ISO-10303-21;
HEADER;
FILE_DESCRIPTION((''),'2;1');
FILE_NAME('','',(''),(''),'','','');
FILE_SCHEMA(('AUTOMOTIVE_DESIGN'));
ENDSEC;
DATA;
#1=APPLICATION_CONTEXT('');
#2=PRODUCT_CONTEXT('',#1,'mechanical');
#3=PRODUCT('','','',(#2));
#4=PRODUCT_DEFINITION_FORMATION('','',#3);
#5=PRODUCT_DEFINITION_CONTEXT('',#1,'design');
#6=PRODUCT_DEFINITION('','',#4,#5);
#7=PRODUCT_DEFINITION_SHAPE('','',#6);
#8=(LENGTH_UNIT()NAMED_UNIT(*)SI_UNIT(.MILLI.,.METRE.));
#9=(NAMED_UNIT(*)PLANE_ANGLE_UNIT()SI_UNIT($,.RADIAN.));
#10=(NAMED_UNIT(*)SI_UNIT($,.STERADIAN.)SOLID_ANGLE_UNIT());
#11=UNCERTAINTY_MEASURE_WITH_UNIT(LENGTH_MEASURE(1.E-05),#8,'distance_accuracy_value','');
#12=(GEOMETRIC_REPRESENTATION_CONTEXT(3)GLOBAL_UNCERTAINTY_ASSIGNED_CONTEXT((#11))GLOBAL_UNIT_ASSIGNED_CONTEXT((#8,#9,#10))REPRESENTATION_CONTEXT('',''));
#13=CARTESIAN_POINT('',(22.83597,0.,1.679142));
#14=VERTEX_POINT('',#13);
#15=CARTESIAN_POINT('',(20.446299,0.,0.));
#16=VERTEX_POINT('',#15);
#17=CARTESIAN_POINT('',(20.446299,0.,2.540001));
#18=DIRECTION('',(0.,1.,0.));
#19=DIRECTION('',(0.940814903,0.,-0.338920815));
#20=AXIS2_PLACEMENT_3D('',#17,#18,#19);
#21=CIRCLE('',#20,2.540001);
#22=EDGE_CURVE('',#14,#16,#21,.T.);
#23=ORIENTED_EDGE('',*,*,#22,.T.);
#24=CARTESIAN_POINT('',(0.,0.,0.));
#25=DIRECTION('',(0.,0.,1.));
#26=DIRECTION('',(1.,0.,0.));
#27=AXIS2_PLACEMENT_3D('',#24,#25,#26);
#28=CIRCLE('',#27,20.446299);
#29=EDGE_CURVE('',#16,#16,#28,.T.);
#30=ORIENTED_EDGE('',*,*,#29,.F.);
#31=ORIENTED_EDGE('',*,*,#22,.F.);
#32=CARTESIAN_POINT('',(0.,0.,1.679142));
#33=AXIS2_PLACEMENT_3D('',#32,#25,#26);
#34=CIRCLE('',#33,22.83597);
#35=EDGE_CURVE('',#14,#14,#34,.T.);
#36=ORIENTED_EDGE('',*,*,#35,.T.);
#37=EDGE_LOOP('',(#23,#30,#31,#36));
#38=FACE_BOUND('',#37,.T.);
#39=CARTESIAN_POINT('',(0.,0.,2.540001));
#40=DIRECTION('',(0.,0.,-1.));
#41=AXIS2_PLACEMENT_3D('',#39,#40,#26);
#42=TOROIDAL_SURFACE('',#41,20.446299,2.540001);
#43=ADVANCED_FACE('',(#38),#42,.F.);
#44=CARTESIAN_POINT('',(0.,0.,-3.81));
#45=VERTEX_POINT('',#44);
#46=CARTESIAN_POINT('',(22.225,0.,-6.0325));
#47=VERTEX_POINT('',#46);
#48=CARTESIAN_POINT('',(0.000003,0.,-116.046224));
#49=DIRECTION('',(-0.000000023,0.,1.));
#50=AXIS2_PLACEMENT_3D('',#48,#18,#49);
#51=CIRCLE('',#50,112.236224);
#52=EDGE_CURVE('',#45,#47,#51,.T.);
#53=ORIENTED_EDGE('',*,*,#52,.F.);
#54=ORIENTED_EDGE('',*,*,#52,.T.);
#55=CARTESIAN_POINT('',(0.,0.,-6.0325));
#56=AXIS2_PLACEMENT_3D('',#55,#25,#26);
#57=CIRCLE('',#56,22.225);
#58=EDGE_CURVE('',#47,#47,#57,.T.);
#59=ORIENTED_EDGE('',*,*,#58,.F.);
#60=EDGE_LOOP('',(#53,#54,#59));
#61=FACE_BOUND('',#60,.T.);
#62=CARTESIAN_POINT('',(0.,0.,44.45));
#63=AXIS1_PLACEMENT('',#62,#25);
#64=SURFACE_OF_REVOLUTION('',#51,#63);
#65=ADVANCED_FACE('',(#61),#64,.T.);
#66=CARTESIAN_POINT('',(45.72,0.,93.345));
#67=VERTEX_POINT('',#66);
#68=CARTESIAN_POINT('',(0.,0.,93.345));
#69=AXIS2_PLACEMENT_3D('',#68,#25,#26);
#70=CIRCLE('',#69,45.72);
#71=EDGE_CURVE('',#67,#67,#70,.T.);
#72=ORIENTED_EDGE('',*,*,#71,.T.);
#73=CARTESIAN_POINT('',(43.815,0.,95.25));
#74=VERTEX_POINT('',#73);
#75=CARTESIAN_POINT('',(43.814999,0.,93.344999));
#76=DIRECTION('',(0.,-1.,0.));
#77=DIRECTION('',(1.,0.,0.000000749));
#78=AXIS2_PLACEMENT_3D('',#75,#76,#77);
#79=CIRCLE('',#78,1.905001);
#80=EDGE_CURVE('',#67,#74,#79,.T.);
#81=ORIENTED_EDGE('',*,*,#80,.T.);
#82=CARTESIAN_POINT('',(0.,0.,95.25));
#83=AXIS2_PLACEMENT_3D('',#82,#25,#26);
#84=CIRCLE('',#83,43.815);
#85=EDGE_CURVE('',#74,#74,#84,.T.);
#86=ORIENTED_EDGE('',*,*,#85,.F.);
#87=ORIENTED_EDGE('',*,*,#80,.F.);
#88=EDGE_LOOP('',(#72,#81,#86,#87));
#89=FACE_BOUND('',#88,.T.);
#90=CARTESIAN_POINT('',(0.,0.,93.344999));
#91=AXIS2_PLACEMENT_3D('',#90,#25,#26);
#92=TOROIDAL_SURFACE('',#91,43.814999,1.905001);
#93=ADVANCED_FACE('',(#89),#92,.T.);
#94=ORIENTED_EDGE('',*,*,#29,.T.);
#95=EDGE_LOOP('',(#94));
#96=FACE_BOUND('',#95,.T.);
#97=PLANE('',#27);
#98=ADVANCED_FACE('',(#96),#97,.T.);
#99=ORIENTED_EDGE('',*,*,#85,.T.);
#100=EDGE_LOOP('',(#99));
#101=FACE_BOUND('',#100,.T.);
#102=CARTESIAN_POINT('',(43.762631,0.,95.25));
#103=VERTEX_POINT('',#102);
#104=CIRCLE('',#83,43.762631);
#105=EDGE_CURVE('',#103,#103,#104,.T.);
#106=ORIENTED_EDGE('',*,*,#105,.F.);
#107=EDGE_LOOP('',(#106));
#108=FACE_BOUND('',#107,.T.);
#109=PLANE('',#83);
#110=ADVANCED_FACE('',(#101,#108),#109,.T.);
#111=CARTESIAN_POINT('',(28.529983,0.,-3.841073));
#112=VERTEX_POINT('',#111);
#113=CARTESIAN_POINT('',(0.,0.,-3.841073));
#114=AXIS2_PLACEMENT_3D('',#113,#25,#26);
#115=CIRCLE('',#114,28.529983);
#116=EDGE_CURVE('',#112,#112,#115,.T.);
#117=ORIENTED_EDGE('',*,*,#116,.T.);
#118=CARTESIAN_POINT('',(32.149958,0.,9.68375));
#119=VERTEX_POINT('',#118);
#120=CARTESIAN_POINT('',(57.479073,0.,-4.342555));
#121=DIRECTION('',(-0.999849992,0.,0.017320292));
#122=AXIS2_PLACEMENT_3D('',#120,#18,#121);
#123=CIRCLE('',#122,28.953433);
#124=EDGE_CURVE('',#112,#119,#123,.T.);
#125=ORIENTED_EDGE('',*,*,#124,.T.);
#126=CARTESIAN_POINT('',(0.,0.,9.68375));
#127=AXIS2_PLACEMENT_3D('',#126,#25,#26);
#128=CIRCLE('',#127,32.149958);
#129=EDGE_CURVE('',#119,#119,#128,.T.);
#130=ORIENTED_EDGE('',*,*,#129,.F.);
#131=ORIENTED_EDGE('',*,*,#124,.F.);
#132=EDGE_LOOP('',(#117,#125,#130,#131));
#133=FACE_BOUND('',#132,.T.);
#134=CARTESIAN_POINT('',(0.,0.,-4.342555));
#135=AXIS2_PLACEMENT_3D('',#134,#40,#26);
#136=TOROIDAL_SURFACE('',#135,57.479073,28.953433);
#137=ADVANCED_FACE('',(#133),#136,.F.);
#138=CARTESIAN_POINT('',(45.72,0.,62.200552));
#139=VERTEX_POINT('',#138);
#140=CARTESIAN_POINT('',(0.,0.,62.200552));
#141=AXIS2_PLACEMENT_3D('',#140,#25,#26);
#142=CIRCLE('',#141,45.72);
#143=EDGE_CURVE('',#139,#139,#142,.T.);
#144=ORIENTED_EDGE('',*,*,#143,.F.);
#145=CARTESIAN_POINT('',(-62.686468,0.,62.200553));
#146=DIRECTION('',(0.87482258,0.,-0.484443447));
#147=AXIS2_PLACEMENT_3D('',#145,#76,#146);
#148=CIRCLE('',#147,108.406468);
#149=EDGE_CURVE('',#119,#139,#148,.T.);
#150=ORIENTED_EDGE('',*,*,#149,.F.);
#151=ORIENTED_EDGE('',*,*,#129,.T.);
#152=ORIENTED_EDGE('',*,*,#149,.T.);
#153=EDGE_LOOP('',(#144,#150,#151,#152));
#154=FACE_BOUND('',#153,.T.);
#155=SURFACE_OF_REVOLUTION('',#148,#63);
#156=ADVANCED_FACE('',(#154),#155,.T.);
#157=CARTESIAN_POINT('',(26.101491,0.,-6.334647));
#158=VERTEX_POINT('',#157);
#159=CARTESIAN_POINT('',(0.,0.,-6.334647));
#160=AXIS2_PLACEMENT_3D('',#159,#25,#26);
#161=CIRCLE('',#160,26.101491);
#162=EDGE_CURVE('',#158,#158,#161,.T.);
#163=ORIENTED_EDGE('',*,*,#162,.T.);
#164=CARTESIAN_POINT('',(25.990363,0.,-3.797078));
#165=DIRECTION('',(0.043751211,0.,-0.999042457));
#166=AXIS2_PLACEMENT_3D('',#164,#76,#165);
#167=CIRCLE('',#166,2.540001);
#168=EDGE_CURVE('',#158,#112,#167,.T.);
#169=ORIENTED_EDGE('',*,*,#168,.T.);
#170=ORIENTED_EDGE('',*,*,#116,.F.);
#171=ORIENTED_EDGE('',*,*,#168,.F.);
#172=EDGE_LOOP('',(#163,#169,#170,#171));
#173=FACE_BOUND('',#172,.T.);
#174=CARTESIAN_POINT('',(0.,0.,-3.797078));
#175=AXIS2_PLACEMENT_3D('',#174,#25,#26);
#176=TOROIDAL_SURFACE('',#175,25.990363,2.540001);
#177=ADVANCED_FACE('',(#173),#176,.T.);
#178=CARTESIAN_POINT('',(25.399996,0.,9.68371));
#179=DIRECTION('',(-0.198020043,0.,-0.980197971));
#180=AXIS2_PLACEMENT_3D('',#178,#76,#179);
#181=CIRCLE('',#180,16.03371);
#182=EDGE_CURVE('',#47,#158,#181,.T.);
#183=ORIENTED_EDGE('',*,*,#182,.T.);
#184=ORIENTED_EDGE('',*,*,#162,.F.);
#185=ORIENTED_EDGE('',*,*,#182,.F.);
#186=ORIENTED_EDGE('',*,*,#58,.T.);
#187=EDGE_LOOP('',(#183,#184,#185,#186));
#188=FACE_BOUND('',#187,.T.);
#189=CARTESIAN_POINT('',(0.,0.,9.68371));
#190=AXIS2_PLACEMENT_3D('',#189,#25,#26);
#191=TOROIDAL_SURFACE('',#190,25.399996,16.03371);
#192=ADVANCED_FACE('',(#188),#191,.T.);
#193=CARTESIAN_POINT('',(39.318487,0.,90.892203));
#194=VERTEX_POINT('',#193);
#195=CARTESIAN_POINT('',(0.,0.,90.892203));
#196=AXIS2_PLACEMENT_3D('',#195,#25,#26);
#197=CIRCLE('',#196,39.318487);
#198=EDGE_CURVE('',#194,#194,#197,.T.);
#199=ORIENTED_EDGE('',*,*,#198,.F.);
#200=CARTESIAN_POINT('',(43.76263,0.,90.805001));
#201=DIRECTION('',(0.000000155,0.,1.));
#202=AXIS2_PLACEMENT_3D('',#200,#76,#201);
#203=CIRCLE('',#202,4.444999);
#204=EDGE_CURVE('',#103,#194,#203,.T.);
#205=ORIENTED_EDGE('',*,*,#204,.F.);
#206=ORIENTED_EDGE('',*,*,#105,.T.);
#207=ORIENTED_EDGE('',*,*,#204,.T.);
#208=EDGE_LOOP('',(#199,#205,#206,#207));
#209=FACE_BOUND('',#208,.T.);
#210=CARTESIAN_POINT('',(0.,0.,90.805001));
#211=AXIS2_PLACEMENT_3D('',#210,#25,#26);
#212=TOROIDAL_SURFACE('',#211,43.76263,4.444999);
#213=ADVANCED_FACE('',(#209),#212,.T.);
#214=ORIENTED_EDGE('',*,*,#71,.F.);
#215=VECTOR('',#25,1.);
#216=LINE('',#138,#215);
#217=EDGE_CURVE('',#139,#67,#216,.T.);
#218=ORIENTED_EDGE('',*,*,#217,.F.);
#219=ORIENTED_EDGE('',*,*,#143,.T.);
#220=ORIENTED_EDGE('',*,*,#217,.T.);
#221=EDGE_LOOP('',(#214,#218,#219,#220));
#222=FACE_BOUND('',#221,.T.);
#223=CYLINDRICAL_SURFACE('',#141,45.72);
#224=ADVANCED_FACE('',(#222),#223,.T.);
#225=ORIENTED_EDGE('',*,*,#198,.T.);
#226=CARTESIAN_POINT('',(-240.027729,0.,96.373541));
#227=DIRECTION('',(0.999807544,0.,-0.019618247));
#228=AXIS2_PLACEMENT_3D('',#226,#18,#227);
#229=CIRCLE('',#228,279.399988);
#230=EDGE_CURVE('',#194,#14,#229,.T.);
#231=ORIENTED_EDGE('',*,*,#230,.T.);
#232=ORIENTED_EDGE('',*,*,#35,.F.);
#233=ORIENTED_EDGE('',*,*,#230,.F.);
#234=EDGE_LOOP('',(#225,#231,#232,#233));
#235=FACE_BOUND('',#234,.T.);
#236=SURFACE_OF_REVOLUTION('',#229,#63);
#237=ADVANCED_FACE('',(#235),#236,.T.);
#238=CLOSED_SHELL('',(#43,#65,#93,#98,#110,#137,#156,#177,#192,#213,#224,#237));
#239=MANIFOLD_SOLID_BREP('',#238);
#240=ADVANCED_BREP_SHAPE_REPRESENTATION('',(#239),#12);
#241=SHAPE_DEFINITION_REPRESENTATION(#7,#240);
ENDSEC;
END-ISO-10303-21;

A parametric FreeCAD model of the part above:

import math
import FreeCAD as App
import Part
import Sketcher
Q = App.Units.Quantity

doc = App.newDocument("Part")
body = doc.addObject("PartDesign::Body", "Body")

# Sketch on XZ plane
sketch1 = body.newObject("Sketcher::SketchObject", "Sketch")
sketch1.AttachmentSupport = (doc.getObject("XZ_Plane"), [""])
sketch1.MapMode = "FlatFace"
sketch1.addGeometry([
    Part.LineSegment(App.Vector(20.45, 0, 0), App.Vector(0, 0, 0)),  # 0
    Part.LineSegment(App.Vector(0, 0, 0), App.Vector(0, -3.81, 0)),  # 1
    Part.ArcOfCircle(Part.Circle(App.Vector(0, -116.05, 0), App.Vector(0, 0, 1), 112.24), math.radians(78.58), math.radians(90)),  # 2
    Part.ArcOfCircle(Part.Circle(App.Vector(25.4, 9.68, 0), App.Vector(0, 0, 1), 16.03), math.radians(-101.42), math.radians(-87.49)),  # 3
    Part.ArcOfCircle(Part.Circle(App.Vector(25.99, -3.8, 0), App.Vector(0, 0, 1), 2.54), math.radians(-87), math.radians(-1)),  # 4
    Part.ArcOfCircle(Part.Circle(App.Vector(57.48, -4.34, 0), App.Vector(0, 0, 1), 28.95), math.radians(151), math.radians(179)),  # 5
    Part.ArcOfCircle(Part.Circle(App.Vector(-62.69, 62.2, 0), App.Vector(0, 0, 1), 108.41), math.radians(-29), math.radians(0)),  # 6
    Part.LineSegment(App.Vector(45.72, 62.2, 0), App.Vector(45.72, 93.34, 0)),  # 7
    Part.ArcOfCircle(Part.Circle(App.Vector(43.81, 93.34, 0), App.Vector(0, 0, 1), 1.91), math.radians(0), math.radians(90)),  # 8
    Part.LineSegment(App.Vector(43.81, 95.25, 0), App.Vector(43.76, 95.25, 0)),  # 9
    Part.ArcOfCircle(Part.Circle(App.Vector(43.76, 90.81, 0), App.Vector(0, 0, 1), 4.44), math.radians(90), math.radians(179)),  # 10
    Part.ArcOfCircle(Part.Circle(App.Vector(-240.03, 96.37, 0), App.Vector(0, 0, 1), 279.4), math.radians(-19.81), math.radians(-1.12)),  # 11
    Part.ArcOfCircle(Part.Circle(App.Vector(20.45, 2.54, 0), App.Vector(0, 0, 1), 2.54), math.radians(-90), math.radians(-20)),  # 12
], False)
sketch1.addConstraint([
    Sketcher.Constraint("Coincident", 0, 2, 1, 1),
    Sketcher.Constraint("Coincident", 1, 2, 2, 2),
    Sketcher.Constraint("Tangent", 2, 1, 3, 1),
    Sketcher.Constraint("Tangent", 3, 2, 4, 1),
    Sketcher.Constraint("Tangent", 4, 2, 5, 2),
    Sketcher.Constraint("Tangent", 5, 1, 6, 1),
    Sketcher.Constraint("Tangent", 6, 2, 7, 1),
    Sketcher.Constraint("Tangent", 7, 2, 8, 1),
    Sketcher.Constraint("Tangent", 8, 2, 9, 1),
    Sketcher.Constraint("Tangent", 9, 2, 10, 1),
    Sketcher.Constraint("Tangent", 10, 2, 11, 2),
    Sketcher.Constraint("Tangent", 11, 1, 12, 2),
    Sketcher.Constraint("Tangent", 12, 1, 0, 1),
    Sketcher.Constraint("Horizontal", 0),
    Sketcher.Constraint("Vertical", 1),
    Sketcher.Constraint("Vertical", 7),
    Sketcher.Constraint("Horizontal", 9),
    Sketcher.Constraint("Coincident", 0, 2, -1, 1),
    Sketcher.Constraint("Equal", 4, 12),
    Sketcher.Constraint("Radius", 4, Q("0.1 in")),
    Sketcher.Constraint("DistanceX", -1, 1, 3, 3, Q("0.9999998 in")),
    Sketcher.Constraint("Radius", 8, Q("0.0750001 in")),
    Sketcher.Constraint("Radius", 10, Q("0.175 in")),
    Sketcher.Constraint("DistanceY", 1, 2, 1, 1, Q("0.15 in")),
    Sketcher.Constraint("DistanceX", -1, 1, 6, 2, Q("1.8 in")),
    Sketcher.Constraint("DistanceY", -1, 1, 8, 2, Q("3.75 in")),
    Sketcher.Constraint("Radius", 3, 16.03371),
    Sketcher.Constraint("Radius", 6, 108.406468),
    Sketcher.Constraint("Radius", 11, 279.399988),
    Sketcher.Constraint("DistanceX", 2, 3, 8, 3, Q("1.7249998 in")),
    Sketcher.Constraint("DistanceY", 12, 3, 5, 1, Q("0.2812499 in")),
    Sketcher.Constraint("DistanceX", 0, 2, 0, 1, 20.446299),
    Sketcher.Constraint("Radius", 2, 112.236224),
    Sketcher.Constraint("Radius", 5, 28.953433),
    Sketcher.Constraint("DistanceX", 9, 2, 9, 1, 0.052369),
    Sketcher.Constraint("DistanceY", 7, 1, 7, 2, 31.144448),
])
revolution = body.newObject("PartDesign::Revolution", "Revolution")
revolution.Profile = sketch1
revolution.ReferenceAxis = (sketch1, ["V_Axis"])
revolution.Angle = 360

doc.recompute()
